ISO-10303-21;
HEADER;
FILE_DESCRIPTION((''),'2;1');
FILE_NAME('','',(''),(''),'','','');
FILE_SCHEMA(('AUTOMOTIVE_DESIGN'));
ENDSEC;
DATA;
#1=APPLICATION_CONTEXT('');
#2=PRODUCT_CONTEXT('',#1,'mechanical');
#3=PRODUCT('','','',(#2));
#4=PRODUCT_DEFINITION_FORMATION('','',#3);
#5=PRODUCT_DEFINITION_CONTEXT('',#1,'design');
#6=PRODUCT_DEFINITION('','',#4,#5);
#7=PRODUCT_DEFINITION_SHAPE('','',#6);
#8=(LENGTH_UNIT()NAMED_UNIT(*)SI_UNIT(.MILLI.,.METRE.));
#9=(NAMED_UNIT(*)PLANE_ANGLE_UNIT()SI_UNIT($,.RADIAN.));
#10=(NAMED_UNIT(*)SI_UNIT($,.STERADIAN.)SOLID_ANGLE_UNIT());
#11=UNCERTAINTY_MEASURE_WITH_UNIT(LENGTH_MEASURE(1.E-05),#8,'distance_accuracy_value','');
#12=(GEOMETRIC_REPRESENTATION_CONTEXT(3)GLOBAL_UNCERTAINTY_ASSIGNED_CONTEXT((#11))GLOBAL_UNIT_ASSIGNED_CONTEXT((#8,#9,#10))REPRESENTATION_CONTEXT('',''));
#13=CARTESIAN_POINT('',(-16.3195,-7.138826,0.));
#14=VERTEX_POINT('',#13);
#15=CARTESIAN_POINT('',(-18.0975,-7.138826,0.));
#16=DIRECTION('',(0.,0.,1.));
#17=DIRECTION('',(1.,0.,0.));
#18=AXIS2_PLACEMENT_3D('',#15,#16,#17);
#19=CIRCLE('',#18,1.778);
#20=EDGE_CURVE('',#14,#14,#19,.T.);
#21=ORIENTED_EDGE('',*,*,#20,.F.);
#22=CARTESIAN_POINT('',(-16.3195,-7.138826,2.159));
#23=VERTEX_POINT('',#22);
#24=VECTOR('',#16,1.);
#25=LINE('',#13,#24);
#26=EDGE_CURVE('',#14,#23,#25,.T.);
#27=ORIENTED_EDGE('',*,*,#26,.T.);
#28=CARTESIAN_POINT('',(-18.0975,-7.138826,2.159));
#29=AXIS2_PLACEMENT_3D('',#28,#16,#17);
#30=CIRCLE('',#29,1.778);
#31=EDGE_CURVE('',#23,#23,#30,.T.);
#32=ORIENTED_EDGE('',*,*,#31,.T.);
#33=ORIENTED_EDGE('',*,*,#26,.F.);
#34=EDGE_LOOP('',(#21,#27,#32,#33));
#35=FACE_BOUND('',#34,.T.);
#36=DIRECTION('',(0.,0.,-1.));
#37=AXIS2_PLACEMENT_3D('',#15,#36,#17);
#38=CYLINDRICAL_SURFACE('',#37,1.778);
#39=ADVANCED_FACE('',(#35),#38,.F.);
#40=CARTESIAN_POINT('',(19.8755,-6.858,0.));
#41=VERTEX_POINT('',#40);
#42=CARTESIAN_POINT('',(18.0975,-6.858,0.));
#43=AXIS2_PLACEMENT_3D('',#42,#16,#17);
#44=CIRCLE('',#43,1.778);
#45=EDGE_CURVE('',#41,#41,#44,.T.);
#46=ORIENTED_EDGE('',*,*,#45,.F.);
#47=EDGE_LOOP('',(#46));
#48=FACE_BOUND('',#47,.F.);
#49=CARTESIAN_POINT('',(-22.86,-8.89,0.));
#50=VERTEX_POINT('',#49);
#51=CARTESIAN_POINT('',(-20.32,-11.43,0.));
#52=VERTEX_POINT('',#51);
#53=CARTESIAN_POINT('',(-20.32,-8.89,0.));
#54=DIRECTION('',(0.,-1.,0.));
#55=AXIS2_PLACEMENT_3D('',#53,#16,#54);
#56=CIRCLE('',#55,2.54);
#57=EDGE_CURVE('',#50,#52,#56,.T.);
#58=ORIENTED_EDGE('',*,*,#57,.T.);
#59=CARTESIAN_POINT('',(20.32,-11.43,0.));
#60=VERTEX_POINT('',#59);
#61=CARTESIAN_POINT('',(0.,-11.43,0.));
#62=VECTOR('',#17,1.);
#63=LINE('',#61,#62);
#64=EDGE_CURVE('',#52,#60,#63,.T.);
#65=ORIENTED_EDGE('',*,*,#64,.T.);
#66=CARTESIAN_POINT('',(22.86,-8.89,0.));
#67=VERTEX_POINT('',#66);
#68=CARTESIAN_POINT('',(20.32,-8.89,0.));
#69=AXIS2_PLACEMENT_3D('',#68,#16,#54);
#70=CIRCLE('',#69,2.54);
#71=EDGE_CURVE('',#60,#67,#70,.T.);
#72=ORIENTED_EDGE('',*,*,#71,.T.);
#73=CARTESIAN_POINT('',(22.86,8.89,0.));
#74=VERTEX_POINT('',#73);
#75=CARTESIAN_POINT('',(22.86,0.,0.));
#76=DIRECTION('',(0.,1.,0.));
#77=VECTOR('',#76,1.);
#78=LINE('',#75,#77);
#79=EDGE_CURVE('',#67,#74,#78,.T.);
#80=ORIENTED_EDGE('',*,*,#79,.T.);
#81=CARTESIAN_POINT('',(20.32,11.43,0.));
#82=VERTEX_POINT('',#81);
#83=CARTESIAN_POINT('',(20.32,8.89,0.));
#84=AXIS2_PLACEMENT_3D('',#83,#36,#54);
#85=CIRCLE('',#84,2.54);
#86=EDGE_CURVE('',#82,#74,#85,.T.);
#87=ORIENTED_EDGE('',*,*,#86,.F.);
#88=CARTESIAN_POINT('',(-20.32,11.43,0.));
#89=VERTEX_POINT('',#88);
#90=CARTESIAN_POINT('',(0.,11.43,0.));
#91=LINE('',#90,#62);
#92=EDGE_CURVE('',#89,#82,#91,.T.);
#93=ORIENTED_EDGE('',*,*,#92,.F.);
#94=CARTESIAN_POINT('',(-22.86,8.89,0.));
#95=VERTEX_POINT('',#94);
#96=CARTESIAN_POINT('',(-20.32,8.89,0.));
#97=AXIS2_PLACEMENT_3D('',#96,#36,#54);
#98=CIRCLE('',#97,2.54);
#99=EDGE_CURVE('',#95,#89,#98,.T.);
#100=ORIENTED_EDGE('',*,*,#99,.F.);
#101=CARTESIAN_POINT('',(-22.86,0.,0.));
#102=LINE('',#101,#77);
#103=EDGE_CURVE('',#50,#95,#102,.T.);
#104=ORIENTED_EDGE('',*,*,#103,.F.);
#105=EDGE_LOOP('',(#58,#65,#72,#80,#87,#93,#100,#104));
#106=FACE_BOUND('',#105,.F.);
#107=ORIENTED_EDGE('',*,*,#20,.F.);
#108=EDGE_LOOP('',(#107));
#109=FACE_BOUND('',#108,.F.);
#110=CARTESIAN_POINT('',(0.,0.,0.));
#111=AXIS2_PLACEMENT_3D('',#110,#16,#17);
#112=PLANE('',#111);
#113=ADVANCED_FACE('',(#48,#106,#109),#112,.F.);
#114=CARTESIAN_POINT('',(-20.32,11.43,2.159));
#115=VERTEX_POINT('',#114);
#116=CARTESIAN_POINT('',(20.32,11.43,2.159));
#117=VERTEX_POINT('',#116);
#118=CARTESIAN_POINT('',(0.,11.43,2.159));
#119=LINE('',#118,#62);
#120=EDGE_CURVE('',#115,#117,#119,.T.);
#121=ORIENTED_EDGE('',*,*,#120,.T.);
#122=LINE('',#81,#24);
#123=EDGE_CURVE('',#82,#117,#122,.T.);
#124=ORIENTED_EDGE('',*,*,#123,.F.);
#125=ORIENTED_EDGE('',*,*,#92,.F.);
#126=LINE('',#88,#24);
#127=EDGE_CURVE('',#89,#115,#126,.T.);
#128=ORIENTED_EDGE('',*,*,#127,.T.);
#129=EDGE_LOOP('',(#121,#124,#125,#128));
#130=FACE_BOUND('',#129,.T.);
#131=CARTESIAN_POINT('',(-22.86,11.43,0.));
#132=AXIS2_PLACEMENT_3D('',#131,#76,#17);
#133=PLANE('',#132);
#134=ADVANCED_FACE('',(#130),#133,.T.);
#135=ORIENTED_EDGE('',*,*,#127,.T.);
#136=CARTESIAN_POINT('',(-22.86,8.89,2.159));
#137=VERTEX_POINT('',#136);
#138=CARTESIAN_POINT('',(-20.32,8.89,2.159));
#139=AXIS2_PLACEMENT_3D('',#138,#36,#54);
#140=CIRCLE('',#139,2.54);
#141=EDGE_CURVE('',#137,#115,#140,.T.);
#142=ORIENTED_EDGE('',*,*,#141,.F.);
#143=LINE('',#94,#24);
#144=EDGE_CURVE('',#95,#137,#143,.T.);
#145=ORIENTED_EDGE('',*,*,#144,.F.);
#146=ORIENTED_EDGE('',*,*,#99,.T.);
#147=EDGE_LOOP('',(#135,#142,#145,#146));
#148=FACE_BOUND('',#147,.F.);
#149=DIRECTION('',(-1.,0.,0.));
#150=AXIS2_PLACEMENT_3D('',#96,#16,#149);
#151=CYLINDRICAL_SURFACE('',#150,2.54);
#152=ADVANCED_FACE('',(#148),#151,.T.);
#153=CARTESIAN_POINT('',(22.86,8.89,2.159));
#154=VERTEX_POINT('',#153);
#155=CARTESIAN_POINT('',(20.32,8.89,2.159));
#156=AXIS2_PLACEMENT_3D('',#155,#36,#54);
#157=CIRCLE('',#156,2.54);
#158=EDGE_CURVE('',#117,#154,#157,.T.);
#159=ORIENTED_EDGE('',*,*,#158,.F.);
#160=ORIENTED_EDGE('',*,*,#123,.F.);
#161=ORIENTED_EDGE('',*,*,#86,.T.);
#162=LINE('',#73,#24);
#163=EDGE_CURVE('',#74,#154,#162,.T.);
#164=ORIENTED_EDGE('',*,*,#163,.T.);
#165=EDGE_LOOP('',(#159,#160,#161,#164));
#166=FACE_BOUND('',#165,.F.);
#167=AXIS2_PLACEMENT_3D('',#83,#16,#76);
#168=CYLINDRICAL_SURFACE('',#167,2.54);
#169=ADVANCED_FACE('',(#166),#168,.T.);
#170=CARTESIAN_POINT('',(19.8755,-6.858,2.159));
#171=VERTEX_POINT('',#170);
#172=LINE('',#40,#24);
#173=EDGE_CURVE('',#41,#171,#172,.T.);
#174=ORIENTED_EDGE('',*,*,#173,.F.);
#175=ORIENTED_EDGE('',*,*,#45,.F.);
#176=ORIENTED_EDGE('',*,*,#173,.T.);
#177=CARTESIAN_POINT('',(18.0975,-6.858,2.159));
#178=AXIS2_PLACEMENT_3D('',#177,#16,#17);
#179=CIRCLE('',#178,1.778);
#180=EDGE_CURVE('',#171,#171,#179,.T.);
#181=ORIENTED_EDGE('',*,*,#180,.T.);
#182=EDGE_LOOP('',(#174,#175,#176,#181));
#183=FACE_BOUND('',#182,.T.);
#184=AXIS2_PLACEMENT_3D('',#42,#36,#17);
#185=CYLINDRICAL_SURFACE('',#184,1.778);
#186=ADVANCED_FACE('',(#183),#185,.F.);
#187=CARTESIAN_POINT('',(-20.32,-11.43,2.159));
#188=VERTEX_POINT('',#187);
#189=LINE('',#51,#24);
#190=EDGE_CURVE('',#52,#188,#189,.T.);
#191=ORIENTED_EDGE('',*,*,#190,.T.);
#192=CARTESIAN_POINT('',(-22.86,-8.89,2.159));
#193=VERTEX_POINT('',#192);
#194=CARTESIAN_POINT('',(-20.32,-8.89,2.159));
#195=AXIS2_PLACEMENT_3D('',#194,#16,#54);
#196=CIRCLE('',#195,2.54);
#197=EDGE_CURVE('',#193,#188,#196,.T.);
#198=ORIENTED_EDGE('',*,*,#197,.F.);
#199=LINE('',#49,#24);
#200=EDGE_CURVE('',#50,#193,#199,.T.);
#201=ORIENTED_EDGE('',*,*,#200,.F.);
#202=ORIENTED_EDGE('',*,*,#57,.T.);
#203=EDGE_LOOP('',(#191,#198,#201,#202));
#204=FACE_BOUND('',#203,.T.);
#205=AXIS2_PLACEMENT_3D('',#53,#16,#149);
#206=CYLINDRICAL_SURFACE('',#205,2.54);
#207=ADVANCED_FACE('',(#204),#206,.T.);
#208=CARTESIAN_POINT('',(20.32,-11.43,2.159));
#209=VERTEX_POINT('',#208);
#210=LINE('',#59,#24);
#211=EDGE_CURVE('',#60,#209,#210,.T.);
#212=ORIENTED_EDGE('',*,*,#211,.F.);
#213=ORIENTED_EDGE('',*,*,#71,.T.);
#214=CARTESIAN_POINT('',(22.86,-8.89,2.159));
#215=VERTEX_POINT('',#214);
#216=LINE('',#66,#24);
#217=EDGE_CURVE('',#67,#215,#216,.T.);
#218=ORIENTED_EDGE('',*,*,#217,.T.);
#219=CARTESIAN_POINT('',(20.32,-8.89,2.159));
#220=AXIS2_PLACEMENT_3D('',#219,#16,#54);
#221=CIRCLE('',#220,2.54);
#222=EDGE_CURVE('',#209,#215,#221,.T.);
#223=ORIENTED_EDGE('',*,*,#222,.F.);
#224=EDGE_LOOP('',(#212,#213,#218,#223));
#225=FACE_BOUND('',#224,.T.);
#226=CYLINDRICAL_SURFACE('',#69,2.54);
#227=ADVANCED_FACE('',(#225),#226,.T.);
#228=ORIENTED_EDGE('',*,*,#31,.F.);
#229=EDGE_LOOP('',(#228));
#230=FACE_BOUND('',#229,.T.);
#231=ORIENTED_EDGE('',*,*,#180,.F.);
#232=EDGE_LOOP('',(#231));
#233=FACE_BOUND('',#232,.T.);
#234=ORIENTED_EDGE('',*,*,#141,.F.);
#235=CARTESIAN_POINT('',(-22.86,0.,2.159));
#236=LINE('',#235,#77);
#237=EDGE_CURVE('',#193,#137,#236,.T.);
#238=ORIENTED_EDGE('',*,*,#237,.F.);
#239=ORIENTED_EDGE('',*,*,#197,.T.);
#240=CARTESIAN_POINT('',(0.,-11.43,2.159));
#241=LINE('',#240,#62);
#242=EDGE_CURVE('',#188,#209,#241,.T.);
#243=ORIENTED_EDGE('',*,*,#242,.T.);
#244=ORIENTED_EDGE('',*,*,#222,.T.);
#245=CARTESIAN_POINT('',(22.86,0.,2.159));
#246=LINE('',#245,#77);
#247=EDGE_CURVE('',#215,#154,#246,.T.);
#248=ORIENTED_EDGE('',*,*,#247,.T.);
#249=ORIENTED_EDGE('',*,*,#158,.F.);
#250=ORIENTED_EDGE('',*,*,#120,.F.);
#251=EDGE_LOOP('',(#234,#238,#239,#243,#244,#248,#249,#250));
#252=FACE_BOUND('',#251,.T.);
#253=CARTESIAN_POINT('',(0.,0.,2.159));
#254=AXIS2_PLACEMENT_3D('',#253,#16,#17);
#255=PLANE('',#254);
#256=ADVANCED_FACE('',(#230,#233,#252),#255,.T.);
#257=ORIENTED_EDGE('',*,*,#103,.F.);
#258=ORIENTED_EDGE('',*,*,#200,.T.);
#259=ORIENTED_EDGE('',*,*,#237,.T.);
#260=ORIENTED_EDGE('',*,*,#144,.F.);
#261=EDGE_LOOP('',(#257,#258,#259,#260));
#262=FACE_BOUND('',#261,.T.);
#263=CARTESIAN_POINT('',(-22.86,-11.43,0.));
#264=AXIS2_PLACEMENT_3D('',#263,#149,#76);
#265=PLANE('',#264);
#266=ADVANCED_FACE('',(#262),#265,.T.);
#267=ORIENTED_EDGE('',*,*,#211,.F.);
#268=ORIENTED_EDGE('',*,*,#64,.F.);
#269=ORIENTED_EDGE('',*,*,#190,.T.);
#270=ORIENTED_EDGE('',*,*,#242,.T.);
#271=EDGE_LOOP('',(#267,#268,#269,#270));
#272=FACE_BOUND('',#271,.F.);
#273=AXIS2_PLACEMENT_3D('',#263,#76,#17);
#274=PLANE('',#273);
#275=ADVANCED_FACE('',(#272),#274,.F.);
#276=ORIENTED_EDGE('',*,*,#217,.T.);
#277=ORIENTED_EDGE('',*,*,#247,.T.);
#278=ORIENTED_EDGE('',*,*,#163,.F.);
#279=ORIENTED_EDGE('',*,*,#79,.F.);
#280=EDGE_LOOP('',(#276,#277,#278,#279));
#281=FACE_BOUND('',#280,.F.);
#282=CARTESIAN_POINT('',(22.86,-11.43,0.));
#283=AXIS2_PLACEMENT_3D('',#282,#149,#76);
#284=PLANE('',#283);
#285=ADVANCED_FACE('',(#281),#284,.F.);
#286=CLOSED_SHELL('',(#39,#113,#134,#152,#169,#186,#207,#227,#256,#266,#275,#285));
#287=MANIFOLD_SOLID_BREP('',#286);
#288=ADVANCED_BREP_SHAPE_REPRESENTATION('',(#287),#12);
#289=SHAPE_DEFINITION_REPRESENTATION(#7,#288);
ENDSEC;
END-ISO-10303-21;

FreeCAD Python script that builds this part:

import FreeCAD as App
import Part
import Sketcher
from FreeCAD import Vector
Q = App.Units.Quantity


def edges_at(feature, points):
    """Names of the edges that pass closest to the given points."""
    edges = feature.Shape.Edges
    near = lambda p: min(range(len(edges)), key=lambda i: edges[i].distToShape(Part.Vertex(*p))[0])
    return sorted({f"Edge{near(p) + 1}" for p in points})

doc = App.newDocument("Part")
params = doc.addObject("Spreadsheet::Sheet", "Params")
for row, (alias, value) in enumerate([
    ("sketch1_diameter", "0.14 in"),
    ("sketch1_width", "1.8 in"),
    ("sketch1_height", "0.9 in"),
    ("pad1_length", "0.085 in"),
    ("fillet_radius", "0.1 in"),
], start=1):
    params.set(f"A{row}", alias)
    params.set(f"B{row}", "=" + value)
    params.setAlias(f"B{row}", alias)

body = doc.addObject("PartDesign::Body", "Body")

# Sketch on XY plane
sketch1 = body.newObject("Sketcher::SketchObject", "Sketch")
sketch1.AttachmentSupport = (doc.getObject("XY_Plane"), [""])
sketch1.MapMode = "FlatFace"
sketch1.addGeometry([
    Part.LineSegment(Vector(-22.9, 11.4, 0), Vector(-22.9, -11.4, 0)),  # 0
    Part.LineSegment(Vector(-22.9, -11.4, 0), Vector(22.9, -11.4, 0)),  # 1
    Part.LineSegment(Vector(22.9, -11.4, 0), Vector(22.9, 11.4, 0)),  # 2
    Part.LineSegment(Vector(22.9, 11.4, 0), Vector(-22.9, 11.4, 0)),  # 3
    Part.Circle(Vector(-18.1, -7.1, 0), Vector(0, 0, 1), 1.8),  # 4
    Part.Circle(Vector(18.1, -6.9, 0), Vector(0, 0, 1), 1.8),  # 5
], False)
sketch1.addConstraint([
    Sketcher.Constraint("Coincident", 0, 2, 1, 1),
    Sketcher.Constraint("Coincident", 1, 2, 2, 1),
    Sketcher.Constraint("Coincident", 2, 2, 3, 1),
    Sketcher.Constraint("Coincident", 3, 2, 0, 1),
    Sketcher.Constraint("Vertical", 0),
    Sketcher.Constraint("Horizontal", 1),
    Sketcher.Constraint("Vertical", 2),
    Sketcher.Constraint("Horizontal", 3),
    Sketcher.Constraint("Equal", 4, 5),
    Sketcher.Constraint("Symmetric", 0, 2, 2, 2, -1, 1),
    Sketcher.Constraint("Diameter", 4, Q("0.14 in")),
    Sketcher.Constraint("DistanceX", 1, 1, 1, 2, Q("1.8 in")),
    Sketcher.Constraint("DistanceY", 0, 2, 0, 1, Q("0.9 in")),
    Sketcher.Constraint("DistanceY", 5, 3, -1, 1, Q("0.27 in")),
    Sketcher.Constraint("DistanceX", 4, 3, 5, 3, Q("1.425 in")),
    Sketcher.Constraint("DistanceX", 0, 2, 4, 3, Q("0.1875 in")),
    Sketcher.Constraint("DistanceY", 4, 3, -1, 1, 7.138826),
])
sketch1.setExpression("Constraints[10]", "Params.sketch1_diameter")
sketch1.setExpression("Constraints[11]", "Params.sketch1_width")
sketch1.setExpression("Constraints[12]", "Params.sketch1_height")
pad1 = body.newObject("PartDesign::Pad", "Pad")
pad1.Profile = sketch1
pad1.setExpression("Length", "Params.pad1_length")
doc.recompute()

fillet = body.newObject("PartDesign::Fillet", "Fillet")
fillet.Base = (pad1, edges_at(pad1, [
    (22.86, -11.43, 1.079),
    (22.86, 11.43, 1.079),
    (-22.86, -11.43, 1.079),
    (-22.86, 11.43, 1.079),
]))
fillet.setExpression("Radius", "Params.fillet_radius")

doc.recompute()
